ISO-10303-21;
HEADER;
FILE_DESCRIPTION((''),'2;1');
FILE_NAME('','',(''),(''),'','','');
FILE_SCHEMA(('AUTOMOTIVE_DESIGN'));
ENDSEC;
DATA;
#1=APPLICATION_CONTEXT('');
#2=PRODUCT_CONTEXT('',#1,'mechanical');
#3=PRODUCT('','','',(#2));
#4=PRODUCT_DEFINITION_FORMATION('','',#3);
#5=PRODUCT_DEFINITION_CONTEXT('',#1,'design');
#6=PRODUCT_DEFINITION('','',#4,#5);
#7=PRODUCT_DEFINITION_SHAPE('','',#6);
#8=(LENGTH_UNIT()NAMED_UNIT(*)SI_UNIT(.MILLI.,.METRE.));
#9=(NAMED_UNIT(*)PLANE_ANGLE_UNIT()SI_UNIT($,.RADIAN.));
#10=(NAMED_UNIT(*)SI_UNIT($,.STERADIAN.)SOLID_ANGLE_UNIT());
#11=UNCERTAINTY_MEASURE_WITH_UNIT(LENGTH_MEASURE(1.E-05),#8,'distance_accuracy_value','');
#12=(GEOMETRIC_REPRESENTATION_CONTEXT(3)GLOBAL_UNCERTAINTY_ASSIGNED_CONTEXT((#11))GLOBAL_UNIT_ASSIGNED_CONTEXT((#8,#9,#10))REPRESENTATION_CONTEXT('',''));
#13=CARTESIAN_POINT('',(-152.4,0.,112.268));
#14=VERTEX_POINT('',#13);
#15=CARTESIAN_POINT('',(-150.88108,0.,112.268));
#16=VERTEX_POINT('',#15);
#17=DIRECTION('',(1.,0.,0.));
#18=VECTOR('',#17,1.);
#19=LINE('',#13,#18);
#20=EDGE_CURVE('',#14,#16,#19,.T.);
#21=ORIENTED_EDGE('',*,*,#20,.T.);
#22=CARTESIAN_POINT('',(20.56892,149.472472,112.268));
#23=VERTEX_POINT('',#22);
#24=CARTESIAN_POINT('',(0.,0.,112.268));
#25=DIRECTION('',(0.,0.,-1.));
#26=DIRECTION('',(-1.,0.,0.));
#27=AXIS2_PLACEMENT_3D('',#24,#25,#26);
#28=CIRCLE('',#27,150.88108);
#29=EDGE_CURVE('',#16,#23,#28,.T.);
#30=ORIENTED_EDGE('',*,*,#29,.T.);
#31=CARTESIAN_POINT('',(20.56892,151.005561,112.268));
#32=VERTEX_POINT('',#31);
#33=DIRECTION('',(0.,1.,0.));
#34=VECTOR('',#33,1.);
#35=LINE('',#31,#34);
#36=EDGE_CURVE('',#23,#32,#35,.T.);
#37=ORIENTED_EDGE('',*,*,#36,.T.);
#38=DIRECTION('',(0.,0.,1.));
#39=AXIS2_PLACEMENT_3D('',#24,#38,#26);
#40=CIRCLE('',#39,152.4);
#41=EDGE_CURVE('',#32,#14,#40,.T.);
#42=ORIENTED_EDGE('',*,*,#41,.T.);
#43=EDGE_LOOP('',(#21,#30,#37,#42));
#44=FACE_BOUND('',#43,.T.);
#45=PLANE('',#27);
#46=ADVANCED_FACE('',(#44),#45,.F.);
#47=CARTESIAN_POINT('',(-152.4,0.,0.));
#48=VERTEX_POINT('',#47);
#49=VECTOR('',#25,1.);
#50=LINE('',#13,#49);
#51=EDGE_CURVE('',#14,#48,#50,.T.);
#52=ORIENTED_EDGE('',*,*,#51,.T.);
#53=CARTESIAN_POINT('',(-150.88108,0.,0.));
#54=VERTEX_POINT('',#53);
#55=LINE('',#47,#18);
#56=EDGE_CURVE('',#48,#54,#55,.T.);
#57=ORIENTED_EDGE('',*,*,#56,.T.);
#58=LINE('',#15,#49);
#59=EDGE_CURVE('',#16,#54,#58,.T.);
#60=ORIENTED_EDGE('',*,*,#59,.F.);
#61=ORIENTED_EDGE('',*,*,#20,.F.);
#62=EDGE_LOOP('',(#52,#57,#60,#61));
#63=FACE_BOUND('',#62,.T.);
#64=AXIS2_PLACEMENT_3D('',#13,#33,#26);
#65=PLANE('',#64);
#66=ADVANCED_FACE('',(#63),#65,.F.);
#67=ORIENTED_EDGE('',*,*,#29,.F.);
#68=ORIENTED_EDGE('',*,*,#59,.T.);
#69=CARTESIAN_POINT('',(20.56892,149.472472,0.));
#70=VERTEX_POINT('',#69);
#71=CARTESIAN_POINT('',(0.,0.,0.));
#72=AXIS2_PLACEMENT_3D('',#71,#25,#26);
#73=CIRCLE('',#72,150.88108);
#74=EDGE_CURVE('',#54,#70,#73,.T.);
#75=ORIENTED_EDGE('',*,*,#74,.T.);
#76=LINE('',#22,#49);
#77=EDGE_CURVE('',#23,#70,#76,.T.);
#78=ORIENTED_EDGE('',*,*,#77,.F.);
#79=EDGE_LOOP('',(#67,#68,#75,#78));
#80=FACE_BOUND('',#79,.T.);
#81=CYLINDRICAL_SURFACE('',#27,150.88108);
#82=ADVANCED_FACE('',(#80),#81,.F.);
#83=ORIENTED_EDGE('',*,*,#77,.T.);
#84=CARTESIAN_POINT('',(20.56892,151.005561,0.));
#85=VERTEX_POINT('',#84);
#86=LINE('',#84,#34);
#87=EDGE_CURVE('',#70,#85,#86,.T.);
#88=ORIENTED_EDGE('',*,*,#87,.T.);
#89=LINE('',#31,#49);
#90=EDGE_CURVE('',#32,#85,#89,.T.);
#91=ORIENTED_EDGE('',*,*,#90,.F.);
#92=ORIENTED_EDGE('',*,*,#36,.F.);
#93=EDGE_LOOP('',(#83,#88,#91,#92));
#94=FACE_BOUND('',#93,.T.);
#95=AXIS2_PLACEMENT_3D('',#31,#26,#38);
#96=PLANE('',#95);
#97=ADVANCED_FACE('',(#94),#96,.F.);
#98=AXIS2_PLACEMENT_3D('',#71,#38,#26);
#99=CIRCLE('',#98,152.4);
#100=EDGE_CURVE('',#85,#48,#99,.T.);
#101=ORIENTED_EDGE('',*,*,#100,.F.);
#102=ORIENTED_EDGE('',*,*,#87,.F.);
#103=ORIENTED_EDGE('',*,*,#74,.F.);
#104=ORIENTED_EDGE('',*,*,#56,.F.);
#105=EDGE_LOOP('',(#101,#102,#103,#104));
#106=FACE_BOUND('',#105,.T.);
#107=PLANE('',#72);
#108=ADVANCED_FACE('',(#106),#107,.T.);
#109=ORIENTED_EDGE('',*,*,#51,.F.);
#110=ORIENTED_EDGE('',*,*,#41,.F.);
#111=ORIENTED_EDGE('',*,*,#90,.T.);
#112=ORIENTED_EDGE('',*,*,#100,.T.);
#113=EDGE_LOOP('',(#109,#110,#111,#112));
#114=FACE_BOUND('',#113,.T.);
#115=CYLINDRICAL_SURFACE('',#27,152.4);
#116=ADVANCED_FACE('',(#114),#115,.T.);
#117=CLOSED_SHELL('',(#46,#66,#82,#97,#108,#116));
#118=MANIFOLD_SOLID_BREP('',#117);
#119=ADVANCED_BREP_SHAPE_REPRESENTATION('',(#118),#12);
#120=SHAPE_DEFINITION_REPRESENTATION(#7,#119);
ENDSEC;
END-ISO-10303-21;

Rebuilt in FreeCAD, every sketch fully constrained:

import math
import FreeCAD as App
import Part
import Sketcher
from FreeCAD import Vector
Q = App.Units.Quantity

doc = App.newDocument("Part")
body = doc.addObject("PartDesign::Body", "Body")

# Sketch on XY plane
sketch1 = body.newObject("Sketcher::SketchObject", "Sketch")
sketch1.AttachmentSupport = (doc.getObject("XY_Plane"), [""])
sketch1.MapMode = "FlatFace"
sketch1.addGeometry([
    Part.LineSegment(Vector(20.56892, 149.472472, 0), Vector(20.56892, 151.005561, 0)),
    Part.ArcOfCircle(Part.Circle(Vector(0, 0, 0), Vector(0, 0, 1), 152.4), math.radians(82.243308), math.radians(180)),
    Part.LineSegment(Vector(-152.4, 0, 0), Vector(-150.88108, 0, 0)),
    Part.ArcOfCircle(Part.Circle(Vector(0, 0, 0), Vector(0, 0, 1), 150.88108), math.radians(82.164733), math.radians(180)),
], False)
sketch1.addConstraint([
    Sketcher.Constraint("Coincident", 0, 2, 1, 1),
    Sketcher.Constraint("Coincident", 1, 2, 2, 1),
    Sketcher.Constraint("Coincident", 2, 2, 3, 2),
    Sketcher.Constraint("Coincident", 3, 1, 0, 1),
    Sketcher.Constraint("Vertical", 0),
    Sketcher.Constraint("Horizontal", 2),
    Sketcher.Constraint("Coincident", 1, 3, -1, 1),
    Sketcher.Constraint("Coincident", 3, 3, -1, 1),
    Sketcher.Constraint("PointOnObject", 1, 2, -1),
    Sketcher.Constraint("Radius", 1, Q("6 in")),
    Sketcher.Constraint("Radius", 3, Q("5.9402 in")),
    Sketcher.Constraint("DistanceX", 2, 2, 0, 2, Q("6.75 in")),
])
pad1 = body.newObject("PartDesign::Pad", "Pad")
pad1.Profile = sketch1
pad1.Length = Q("4.42 in")

doc.recompute()
